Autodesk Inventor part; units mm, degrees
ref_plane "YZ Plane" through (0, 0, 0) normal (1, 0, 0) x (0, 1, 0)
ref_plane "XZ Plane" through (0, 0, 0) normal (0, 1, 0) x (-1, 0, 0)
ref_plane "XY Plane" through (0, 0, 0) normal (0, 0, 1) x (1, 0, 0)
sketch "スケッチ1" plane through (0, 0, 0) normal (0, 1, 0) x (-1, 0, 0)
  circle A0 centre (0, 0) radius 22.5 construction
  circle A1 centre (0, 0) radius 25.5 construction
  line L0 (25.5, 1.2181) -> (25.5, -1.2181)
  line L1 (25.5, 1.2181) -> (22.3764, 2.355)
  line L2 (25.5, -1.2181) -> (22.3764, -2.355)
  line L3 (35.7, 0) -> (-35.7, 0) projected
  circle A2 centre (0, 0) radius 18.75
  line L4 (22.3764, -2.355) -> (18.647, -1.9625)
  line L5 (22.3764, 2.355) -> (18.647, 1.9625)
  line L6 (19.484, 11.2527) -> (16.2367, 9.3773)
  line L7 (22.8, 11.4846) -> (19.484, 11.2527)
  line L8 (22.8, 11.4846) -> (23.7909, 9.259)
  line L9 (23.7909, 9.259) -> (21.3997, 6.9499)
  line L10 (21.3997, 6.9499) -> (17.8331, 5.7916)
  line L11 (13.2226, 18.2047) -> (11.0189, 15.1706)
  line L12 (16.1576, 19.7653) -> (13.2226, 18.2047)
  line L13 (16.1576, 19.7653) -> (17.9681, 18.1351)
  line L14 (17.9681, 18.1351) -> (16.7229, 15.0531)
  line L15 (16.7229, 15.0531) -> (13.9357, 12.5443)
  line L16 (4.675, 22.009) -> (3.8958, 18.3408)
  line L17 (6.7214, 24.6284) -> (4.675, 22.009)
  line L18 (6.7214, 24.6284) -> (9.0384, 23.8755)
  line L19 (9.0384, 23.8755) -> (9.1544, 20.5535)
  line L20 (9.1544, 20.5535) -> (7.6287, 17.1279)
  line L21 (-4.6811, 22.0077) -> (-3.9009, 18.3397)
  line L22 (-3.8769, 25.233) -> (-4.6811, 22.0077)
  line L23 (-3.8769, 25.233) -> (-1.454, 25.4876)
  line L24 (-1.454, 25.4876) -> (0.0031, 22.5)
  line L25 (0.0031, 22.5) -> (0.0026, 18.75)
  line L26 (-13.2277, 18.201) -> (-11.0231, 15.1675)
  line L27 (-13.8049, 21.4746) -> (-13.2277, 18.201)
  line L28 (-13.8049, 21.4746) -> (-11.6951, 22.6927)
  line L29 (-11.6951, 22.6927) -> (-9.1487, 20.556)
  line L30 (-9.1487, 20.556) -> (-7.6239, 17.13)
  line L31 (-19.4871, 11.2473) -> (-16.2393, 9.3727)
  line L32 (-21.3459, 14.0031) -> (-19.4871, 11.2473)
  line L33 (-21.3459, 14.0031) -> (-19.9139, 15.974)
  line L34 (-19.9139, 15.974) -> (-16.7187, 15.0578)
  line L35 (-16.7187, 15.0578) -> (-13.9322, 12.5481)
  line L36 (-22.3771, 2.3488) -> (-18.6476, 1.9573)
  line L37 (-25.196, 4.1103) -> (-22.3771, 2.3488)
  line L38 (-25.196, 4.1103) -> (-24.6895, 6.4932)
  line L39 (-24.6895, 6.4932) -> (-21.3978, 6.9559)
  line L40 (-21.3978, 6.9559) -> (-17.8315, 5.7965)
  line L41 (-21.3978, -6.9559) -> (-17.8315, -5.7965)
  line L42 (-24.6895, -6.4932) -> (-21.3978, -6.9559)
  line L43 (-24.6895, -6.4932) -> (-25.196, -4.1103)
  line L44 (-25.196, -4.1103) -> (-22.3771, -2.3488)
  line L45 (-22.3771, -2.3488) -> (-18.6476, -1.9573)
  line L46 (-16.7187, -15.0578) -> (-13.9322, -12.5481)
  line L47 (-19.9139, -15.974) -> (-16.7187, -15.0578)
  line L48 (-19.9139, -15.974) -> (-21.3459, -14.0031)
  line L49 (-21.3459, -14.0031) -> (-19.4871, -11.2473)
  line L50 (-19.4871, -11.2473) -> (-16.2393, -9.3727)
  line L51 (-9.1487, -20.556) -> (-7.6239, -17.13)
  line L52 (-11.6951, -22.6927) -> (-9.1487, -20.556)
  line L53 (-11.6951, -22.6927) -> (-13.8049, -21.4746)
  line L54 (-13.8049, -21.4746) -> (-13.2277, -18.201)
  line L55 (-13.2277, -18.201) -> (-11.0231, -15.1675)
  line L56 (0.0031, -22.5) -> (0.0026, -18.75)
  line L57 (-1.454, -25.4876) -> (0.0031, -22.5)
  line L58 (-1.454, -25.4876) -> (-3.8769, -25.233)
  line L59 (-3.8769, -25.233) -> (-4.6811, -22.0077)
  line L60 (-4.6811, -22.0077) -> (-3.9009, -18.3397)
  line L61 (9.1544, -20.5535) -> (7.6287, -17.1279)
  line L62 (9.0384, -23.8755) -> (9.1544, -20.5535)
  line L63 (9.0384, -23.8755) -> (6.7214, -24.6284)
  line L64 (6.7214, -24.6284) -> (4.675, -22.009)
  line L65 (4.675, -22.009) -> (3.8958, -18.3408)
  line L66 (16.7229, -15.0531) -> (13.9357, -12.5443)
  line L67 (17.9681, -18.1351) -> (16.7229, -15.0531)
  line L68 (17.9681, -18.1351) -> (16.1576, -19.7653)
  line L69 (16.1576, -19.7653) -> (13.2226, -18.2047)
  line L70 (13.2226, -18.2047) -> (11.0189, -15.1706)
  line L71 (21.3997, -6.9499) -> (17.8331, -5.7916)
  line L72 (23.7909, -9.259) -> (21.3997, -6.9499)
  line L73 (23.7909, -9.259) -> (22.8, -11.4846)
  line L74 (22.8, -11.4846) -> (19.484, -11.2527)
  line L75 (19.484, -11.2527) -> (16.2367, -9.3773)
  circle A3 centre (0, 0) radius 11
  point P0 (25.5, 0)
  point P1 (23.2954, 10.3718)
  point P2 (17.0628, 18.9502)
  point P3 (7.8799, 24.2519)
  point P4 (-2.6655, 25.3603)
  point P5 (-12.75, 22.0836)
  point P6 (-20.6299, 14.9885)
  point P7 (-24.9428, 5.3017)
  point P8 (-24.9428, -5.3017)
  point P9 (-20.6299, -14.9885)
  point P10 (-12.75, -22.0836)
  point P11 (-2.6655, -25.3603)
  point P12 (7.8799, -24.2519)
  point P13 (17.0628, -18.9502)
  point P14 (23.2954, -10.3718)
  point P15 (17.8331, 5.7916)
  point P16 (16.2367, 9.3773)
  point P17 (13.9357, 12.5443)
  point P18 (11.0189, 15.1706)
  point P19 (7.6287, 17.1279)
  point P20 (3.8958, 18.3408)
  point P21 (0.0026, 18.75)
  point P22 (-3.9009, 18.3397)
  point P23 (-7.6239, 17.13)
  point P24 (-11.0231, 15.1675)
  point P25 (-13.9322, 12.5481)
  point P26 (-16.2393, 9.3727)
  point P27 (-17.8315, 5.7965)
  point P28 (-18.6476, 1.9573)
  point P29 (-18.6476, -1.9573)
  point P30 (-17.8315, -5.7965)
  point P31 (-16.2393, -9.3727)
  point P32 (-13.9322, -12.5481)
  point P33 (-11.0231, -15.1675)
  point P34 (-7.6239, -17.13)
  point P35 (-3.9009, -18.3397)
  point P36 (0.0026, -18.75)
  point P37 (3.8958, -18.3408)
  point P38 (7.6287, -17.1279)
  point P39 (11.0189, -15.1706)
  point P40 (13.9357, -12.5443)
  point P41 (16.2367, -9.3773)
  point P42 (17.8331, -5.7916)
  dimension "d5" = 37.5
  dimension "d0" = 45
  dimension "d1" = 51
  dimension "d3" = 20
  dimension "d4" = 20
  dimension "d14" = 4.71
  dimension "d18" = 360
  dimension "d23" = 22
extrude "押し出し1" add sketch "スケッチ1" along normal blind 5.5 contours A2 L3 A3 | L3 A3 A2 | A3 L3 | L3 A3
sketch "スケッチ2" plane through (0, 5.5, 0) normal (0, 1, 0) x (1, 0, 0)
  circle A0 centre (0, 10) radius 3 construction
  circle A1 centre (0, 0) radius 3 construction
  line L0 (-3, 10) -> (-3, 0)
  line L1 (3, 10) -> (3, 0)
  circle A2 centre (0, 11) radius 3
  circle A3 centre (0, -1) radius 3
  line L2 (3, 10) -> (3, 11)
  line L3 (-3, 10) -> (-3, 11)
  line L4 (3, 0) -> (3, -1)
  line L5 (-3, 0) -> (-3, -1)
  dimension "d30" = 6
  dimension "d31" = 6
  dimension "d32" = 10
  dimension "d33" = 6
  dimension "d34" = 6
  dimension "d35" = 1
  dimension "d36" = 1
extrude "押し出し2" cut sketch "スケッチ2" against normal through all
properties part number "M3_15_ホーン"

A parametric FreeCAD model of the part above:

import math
import FreeCAD as App
import Part
import Sketcher
from FreeCAD import Vector

doc = App.newDocument("Part")
params = doc.addObject("Spreadsheet::Sheet", "Params")
for row, (alias, value) in enumerate([
    ("sketch1_diameter", "37.5 mm"),
    ("pad1_length", "5.5 mm"),
    ("sketch2_radius", "3 mm"),
    ("sketch2_height", "12 mm"),
], start=1):
    params.set(f"A{row}", alias)
    params.set(f"B{row}", "=" + value)
    params.setAlias(f"B{row}", alias)

body = doc.addObject("PartDesign::Body", "Body")

# Sketch on XZ plane
sketch1 = body.newObject("Sketcher::SketchObject", "Sketch")
sketch1.AttachmentSupport = (doc.getObject("XZ_Plane"), [""])
sketch1.MapMode = "FlatFace"
sketch1.addGeometry(Part.Circle(Vector(0, 0, 0), Vector(0, 0, 1), 18.75), False)
sketch1.addConstraint(Sketcher.Constraint("Coincident", 0, 3, -1, 1))
sketch1.addConstraint(Sketcher.Constraint("Diameter", 0, 37.5))
sketch1.setExpression("Constraints[1]", "Params.sketch1_diameter")
pad1 = body.newObject("PartDesign::Pad", "Pad")
pad1.Profile = sketch1
pad1.setExpression("Length", "Params.pad1_length")
pad1.Reversed = True

# Sketch on XZ plane
sketch2 = body.newObject("Sketcher::SketchObject", "Sketch001")
sketch2.AttachmentSupport = (doc.getObject("XZ_Plane"), [""])
sketch2.MapMode = "FlatFace"
sketch2.AttachmentOffset = App.Placement(Vector(0, 0, -5.5), App.Rotation())
sketch2.addGeometry(Part.LineSegment(Vector(-3, -11, 0), Vector(-3, 1, 0)), False)
sketch2.addGeometry(Part.ArcOfCircle(Part.Circle(Vector(0, 1, 0), Vector(0, 0, 1), 3), math.radians(0), math.radians(180)), False)
sketch2.addGeometry(Part.LineSegment(Vector(3, 1, 0), Vector(3, -11, 0)), False)
sketch2.addGeometry(Part.ArcOfCircle(Part.Circle(Vector(0, -11, 0), Vector(0, 0, 1), 3), math.radians(180), math.radians(360)), False)
sketch2.addConstraint(Sketcher.Constraint("Tangent", 0, 2, 1, 2))
sketch2.addConstraint(Sketcher.Constraint("Tangent", 1, 1, 2, 1))
sketch2.addConstraint(Sketcher.Constraint("Tangent", 2, 2, 3, 2))
sketch2.addConstraint(Sketcher.Constraint("Tangent", 3, 1, 0, 1))
sketch2.addConstraint(Sketcher.Constraint("Vertical", 0))
sketch2.addConstraint(Sketcher.Constraint("Vertical", 2))
sketch2.addConstraint(Sketcher.Constraint("PointOnObject", 1, 3, -2))
sketch2.addConstraint(Sketcher.Constraint("Radius", 1, 3.0))
sketch2.addConstraint(Sketcher.Constraint("DistanceY", -1, 1, 1, 3, 1.0))
sketch2.addConstraint(Sketcher.Constraint("DistanceY", 0, 1, 0, 2, 12.0))
sketch2.setExpression("Constraints[7]", "Params.sketch2_radius")
sketch2.setExpression("Constraints[9]", "Params.sketch2_height")
pocket1 = body.newObject("PartDesign::Pocket", "Pocket")
pocket1.Profile = sketch2
pocket1.Type = "ThroughAll"
pocket1.Reversed = True

doc.recompute()
